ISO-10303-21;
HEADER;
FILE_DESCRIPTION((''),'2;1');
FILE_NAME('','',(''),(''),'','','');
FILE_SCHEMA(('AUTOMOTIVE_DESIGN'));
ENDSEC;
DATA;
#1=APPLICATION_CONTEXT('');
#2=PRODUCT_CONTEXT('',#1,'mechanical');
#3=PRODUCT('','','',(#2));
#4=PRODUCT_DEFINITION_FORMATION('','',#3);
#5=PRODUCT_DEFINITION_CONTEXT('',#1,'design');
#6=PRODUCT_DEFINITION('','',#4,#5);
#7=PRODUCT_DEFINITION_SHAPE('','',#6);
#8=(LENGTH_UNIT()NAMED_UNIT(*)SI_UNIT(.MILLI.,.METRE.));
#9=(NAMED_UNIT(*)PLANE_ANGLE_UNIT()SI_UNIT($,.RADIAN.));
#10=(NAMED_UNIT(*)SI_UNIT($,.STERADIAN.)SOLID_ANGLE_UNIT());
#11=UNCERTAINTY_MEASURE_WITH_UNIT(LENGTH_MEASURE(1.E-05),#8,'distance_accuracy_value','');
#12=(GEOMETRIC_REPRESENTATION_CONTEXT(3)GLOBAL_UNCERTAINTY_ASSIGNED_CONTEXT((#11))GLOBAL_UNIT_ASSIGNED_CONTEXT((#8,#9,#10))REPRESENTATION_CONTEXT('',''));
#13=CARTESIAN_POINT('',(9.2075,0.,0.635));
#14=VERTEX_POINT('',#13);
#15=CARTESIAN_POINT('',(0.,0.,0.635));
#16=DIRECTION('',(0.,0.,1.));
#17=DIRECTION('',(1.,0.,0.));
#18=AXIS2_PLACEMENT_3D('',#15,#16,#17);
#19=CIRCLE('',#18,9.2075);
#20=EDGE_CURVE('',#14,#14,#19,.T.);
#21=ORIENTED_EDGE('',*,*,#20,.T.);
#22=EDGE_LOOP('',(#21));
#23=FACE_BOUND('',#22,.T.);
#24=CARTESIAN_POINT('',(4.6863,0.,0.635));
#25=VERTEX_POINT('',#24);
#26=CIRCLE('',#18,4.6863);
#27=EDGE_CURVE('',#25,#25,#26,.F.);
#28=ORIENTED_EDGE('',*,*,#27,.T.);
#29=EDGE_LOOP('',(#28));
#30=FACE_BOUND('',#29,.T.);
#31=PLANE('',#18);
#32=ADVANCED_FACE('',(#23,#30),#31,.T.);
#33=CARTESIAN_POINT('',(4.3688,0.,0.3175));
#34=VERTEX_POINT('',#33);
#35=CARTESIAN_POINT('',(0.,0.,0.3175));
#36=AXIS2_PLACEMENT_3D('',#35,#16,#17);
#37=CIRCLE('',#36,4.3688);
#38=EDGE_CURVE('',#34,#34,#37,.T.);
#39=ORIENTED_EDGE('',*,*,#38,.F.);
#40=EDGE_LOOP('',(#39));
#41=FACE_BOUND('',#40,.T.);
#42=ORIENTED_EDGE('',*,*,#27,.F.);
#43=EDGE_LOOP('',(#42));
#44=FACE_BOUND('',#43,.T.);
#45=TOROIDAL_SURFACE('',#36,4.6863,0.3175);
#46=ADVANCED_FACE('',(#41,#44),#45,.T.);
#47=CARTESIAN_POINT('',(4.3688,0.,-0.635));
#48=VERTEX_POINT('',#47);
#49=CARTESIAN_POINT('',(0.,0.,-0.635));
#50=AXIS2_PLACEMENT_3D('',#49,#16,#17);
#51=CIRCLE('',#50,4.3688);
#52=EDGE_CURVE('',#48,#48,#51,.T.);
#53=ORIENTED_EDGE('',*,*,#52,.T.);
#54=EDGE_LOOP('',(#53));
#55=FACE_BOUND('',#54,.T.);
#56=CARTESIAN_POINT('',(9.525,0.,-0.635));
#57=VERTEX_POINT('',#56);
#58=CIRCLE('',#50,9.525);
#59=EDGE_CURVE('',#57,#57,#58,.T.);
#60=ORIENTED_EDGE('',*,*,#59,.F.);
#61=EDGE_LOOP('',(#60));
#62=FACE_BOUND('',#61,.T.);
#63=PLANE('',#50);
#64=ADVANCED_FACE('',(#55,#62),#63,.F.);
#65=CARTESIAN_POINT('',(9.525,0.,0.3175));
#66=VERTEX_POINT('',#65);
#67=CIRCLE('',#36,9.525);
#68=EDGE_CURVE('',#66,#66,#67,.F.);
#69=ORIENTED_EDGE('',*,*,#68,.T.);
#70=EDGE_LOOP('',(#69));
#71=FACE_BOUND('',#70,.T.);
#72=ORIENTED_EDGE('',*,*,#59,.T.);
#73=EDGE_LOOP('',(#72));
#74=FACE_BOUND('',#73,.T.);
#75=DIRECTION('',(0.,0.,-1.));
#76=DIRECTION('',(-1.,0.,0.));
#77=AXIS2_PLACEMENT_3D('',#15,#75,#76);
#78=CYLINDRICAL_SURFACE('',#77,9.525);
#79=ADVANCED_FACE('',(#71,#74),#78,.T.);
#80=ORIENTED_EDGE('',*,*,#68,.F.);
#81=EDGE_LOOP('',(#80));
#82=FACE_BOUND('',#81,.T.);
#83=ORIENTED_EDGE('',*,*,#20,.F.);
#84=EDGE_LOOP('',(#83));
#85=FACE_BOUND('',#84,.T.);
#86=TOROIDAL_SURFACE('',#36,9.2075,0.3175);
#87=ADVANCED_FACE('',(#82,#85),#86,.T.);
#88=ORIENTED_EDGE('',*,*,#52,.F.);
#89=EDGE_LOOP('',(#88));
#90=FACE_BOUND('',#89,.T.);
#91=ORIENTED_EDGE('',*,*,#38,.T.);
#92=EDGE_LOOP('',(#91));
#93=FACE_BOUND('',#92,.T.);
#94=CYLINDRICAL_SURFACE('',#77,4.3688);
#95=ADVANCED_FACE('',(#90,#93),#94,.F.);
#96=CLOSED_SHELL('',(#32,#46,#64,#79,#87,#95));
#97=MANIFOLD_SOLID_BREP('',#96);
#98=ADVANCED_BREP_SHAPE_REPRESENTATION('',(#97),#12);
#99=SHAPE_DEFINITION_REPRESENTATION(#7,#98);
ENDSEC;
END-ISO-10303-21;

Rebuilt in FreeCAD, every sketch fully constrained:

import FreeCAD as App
import Part
import Sketcher

V = App.Vector
Q = App.Units.Quantity


def edges_at(feature, points):
    """Names of the edges that pass closest to the given points."""
    edges = feature.Shape.Edges
    near = lambda p: min(range(len(edges)), key=lambda i: edges[i].distToShape(Part.Vertex(*p))[0])
    return sorted({f"Edge{near(p) + 1}" for p in points})

doc = App.newDocument("Part")
body = doc.addObject("PartDesign::Body", "Body")

# Sketch on XY plane
sketch1 = body.newObject("Sketcher::SketchObject", "Sketch")
sketch1.AttachmentSupport = (doc.getObject("XY_Plane"), [""])
sketch1.MapMode = "FlatFace"
sketch1.addGeometry([
    Part.Circle(V(0, 0, 0), V(0, 0, 1), 9.525),
    Part.Circle(V(0, 0, 0), V(0, 0, 1), 4.3688),
], False)
sketch1.addConstraint([
    Sketcher.Constraint("Coincident", 0, 3, -1, 1),
    Sketcher.Constraint("Coincident", 1, 3, -1, 1),
    Sketcher.Constraint("Diameter", 0, Q("0.75 in")),
    Sketcher.Constraint("Diameter", 1, Q("0.344 in")),
])
pad1 = body.newObject("PartDesign::Pad", "Pad")
pad1.Profile = sketch1
pad1.Type = "TwoLengths"
pad1.Length = Q("0.025 in")
pad1.Length2 = Q("0.025 in")
doc.recompute()

fillet = body.newObject("PartDesign::Fillet", "Fillet")
fillet.Base = (pad1, edges_at(pad1, [(-9.525, 0, 0.635), (-4.369, 0, 0.635)]))
fillet.Radius = Q("0.0125 in")

doc.recompute()
